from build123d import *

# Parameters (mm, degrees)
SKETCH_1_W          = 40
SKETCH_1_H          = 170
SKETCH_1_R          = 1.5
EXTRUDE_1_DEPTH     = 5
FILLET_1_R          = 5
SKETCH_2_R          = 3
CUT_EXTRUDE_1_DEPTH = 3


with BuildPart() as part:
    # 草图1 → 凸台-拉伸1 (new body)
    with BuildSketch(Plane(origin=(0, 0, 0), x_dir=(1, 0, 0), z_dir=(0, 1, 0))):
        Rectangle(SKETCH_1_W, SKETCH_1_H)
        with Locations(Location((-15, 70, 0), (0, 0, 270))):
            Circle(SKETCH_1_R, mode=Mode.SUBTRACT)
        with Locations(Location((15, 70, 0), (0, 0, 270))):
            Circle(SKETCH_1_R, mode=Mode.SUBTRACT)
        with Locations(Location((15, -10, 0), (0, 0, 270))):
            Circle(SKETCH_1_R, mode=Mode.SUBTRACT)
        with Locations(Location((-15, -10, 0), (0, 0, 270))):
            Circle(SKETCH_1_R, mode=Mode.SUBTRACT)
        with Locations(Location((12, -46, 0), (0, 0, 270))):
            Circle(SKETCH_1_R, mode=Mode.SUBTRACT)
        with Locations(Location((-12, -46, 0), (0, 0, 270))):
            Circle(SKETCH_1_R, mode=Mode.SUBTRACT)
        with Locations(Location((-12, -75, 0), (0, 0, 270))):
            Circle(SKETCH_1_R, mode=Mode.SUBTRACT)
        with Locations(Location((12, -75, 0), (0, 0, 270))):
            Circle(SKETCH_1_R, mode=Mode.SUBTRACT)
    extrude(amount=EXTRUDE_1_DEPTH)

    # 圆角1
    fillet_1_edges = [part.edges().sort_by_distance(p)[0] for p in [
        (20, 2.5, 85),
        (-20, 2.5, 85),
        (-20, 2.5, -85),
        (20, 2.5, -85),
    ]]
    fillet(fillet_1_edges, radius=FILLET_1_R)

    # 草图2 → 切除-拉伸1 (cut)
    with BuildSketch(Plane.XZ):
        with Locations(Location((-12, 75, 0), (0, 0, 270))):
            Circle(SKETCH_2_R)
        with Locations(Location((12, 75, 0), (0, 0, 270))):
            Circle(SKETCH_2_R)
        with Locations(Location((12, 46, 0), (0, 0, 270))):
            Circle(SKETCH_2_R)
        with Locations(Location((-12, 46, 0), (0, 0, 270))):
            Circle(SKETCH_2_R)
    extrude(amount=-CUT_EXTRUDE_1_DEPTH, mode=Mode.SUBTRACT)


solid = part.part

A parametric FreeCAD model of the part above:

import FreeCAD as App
import Part
import Sketcher
from FreeCAD import Vector


def edges_at(feature, points):
    """Names of the edges that pass closest to the given points."""
    edges = feature.Shape.Edges
    near = lambda p: min(range(len(edges)), key=lambda i: edges[i].distToShape(Part.Vertex(*p))[0])
    return sorted({f"Edge{near(p) + 1}" for p in points})

doc = App.newDocument("Part")
body = doc.addObject("PartDesign::Body", "Body")

sketch1 = doc.addObject("Sketcher::SketchObject", "Sketch")
body.addObject(sketch1)
sketch1.AttachmentSupport = (doc.XZ_Plane, [""])
sketch1.MapMode = "FlatFace"
sketch1.addGeometry(Part.LineSegment(Vector(-20, -85, 0), Vector(-20, 85, 0)), False)
sketch1.addGeometry(Part.LineSegment(Vector(-20, 85, 0), Vector(20, 85, 0)), False)
sketch1.addGeometry(Part.LineSegment(Vector(20, 85, 0), Vector(20, -85, 0)), False)
sketch1.addGeometry(Part.LineSegment(Vector(20, -85, 0), Vector(-20, -85, 0)), False)
sketch1.addGeometry(Part.Circle(Vector(-12, 75, 0), Vector(0, 0, 1), 1.5), False)
sketch1.addGeometry(Part.Circle(Vector(-12, 46, 0), Vector(0, 0, 1), 1.5), False)
sketch1.addGeometry(Part.Circle(Vector(-15, 10, 0), Vector(0, 0, 1), 1.5), False)
sketch1.addGeometry(Part.Circle(Vector(12, 75, 0), Vector(0, 0, 1), 1.5), False)
sketch1.addGeometry(Part.Circle(Vector(12, 46, 0), Vector(0, 0, 1), 1.5), False)
sketch1.addGeometry(Part.Circle(Vector(15, 10, 0), Vector(0, 0, 1), 1.5), False)
sketch1.addGeometry(Part.Circle(Vector(-15, -70, 0), Vector(0, 0, 1), 1.5), False)
sketch1.addGeometry(Part.Circle(Vector(15, -70, 0), Vector(0, 0, 1), 1.5), False)
sketch1.addConstraint(Sketcher.Constraint("Coincident", 0, 2, 1, 1))
sketch1.addConstraint(Sketcher.Constraint("Coincident", 1, 2, 2, 1))
sketch1.addConstraint(Sketcher.Constraint("Coincident", 2, 2, 3, 1))
sketch1.addConstraint(Sketcher.Constraint("Coincident", 3, 2, 0, 1))
sketch1.addConstraint(Sketcher.Constraint("Vertical", 0))
sketch1.addConstraint(Sketcher.Constraint("Horizontal", 1))
sketch1.addConstraint(Sketcher.Constraint("Vertical", 2))
sketch1.addConstraint(Sketcher.Constraint("Horizontal", 3))
sketch1.addConstraint(Sketcher.Constraint("Equal", 4, 5))
sketch1.addConstraint(Sketcher.Constraint("Equal", 5, 6))
sketch1.addConstraint(Sketcher.Constraint("Equal", 6, 7))
sketch1.addConstraint(Sketcher.Constraint("Equal", 7, 8))
sketch1.addConstraint(Sketcher.Constraint("Equal", 8, 9))
sketch1.addConstraint(Sketcher.Constraint("Equal", 9, 10))
sketch1.addConstraint(Sketcher.Constraint("Equal", 10, 11))
sketch1.addConstraint(Sketcher.Constraint("Symmetric", 0, 2, 2, 2, -1, 1))
sketch1.addConstraint(Sketcher.Constraint("Symmetric", 4, 3, 7, 3, -2))
sketch1.addConstraint(Sketcher.Constraint("Symmetric", 5, 3, 8, 3, -2))
sketch1.addConstraint(Sketcher.Constraint("Symmetric", 6, 3, 9, 3, -2))
sketch1.addConstraint(Sketcher.Constraint("Symmetric", 10, 3, 11, 3, -2))
sketch1.addConstraint(Sketcher.Constraint("Vertical", 4, 3, 5, 3))
sketch1.addConstraint(Sketcher.Constraint("Vertical", 6, 3, 10, 3))
sketch1.addConstraint(Sketcher.Constraint("Diameter", 4, 3.0))
sketch1.addConstraint(Sketcher.Constraint("DistanceX", 1, 1, 1, 2, 40.0))
sketch1.addConstraint(Sketcher.Constraint("DistanceY", 0, 1, 0, 2, 170.0))
sketch1.addConstraint(Sketcher.Constraint("DistanceX", 4, 3, -1, 1, 12.0))
sketch1.addConstraint(Sketcher.Constraint("DistanceY", -1, 1, 4, 3, 75.0))
sketch1.addConstraint(Sketcher.Constraint("DistanceY", -1, 1, 5, 3, 46.0))
sketch1.addConstraint(Sketcher.Constraint("DistanceX", 6, 3, -1, 1, 15.0))
sketch1.addConstraint(Sketcher.Constraint("DistanceY", -1, 1, 6, 3, 10.0))
sketch1.addConstraint(Sketcher.Constraint("DistanceY", 10, 3, -1, 1, 70.0))
pad1 = doc.addObject("PartDesign::Pad", "Pad")
body.addObject(pad1)
pad1.Profile = sketch1
pad1.Length = 5
pad1.Reversed = True
doc.recompute()

fillet = doc.addObject("PartDesign::Fillet", "Fillet")
body.addObject(fillet)
fillet.Base = (pad1, edges_at(pad1, [
    (20, 2.5, 85),
    (-20, 2.5, 85),
    (-20, 2.5, -85),
    (20, 2.5, -85),
]))
fillet.Radius = 5

sketch2 = doc.addObject("Sketcher::SketchObject", "Sketch001")
body.addObject(sketch2)
sketch2.AttachmentSupport = (doc.XZ_Plane, [""])
sketch2.MapMode = "FlatFace"
sketch2.addGeometry(Part.Circle(Vector(-12, 75, 0), Vector(0, 0, 1), 3), False)
sketch2.addGeometry(Part.Circle(Vector(12, 75, 0), Vector(0, 0, 1), 3), False)
sketch2.addGeometry(Part.Circle(Vector(12, 46, 0), Vector(0, 0, 1), 3), False)
sketch2.addGeometry(Part.Circle(Vector(-12, 46, 0), Vector(0, 0, 1), 3), False)
sketch2.addConstraint(Sketcher.Constraint("Equal", 0, 1))
sketch2.addConstraint(Sketcher.Constraint("Equal", 1, 2))
sketch2.addConstraint(Sketcher.Constraint("Equal", 2, 3))
sketch2.addConstraint(Sketcher.Constraint("Symmetric", 0, 3, 1, 3, -2))
sketch2.addConstraint(Sketcher.Constraint("Symmetric", 2, 3, 3, 3, -2))
sketch2.addConstraint(Sketcher.Constraint("Vertical", 1, 3, 2, 3))
sketch2.addConstraint(Sketcher.Constraint("Diameter", 0, 6.0))
sketch2.addConstraint(Sketcher.Constraint("DistanceX", 0, 3, -1, 1, 12.0))
sketch2.addConstraint(Sketcher.Constraint("DistanceY", -1, 1, 0, 3, 75.0))
sketch2.addConstraint(Sketcher.Constraint("DistanceY", -1, 1, 2, 3, 46.0))
pocket1 = doc.addObject("PartDesign::Pocket", "Pocket")
body.addObject(pocket1)
pocket1.Profile = sketch2
pocket1.Length = 3

doc.recompute()
